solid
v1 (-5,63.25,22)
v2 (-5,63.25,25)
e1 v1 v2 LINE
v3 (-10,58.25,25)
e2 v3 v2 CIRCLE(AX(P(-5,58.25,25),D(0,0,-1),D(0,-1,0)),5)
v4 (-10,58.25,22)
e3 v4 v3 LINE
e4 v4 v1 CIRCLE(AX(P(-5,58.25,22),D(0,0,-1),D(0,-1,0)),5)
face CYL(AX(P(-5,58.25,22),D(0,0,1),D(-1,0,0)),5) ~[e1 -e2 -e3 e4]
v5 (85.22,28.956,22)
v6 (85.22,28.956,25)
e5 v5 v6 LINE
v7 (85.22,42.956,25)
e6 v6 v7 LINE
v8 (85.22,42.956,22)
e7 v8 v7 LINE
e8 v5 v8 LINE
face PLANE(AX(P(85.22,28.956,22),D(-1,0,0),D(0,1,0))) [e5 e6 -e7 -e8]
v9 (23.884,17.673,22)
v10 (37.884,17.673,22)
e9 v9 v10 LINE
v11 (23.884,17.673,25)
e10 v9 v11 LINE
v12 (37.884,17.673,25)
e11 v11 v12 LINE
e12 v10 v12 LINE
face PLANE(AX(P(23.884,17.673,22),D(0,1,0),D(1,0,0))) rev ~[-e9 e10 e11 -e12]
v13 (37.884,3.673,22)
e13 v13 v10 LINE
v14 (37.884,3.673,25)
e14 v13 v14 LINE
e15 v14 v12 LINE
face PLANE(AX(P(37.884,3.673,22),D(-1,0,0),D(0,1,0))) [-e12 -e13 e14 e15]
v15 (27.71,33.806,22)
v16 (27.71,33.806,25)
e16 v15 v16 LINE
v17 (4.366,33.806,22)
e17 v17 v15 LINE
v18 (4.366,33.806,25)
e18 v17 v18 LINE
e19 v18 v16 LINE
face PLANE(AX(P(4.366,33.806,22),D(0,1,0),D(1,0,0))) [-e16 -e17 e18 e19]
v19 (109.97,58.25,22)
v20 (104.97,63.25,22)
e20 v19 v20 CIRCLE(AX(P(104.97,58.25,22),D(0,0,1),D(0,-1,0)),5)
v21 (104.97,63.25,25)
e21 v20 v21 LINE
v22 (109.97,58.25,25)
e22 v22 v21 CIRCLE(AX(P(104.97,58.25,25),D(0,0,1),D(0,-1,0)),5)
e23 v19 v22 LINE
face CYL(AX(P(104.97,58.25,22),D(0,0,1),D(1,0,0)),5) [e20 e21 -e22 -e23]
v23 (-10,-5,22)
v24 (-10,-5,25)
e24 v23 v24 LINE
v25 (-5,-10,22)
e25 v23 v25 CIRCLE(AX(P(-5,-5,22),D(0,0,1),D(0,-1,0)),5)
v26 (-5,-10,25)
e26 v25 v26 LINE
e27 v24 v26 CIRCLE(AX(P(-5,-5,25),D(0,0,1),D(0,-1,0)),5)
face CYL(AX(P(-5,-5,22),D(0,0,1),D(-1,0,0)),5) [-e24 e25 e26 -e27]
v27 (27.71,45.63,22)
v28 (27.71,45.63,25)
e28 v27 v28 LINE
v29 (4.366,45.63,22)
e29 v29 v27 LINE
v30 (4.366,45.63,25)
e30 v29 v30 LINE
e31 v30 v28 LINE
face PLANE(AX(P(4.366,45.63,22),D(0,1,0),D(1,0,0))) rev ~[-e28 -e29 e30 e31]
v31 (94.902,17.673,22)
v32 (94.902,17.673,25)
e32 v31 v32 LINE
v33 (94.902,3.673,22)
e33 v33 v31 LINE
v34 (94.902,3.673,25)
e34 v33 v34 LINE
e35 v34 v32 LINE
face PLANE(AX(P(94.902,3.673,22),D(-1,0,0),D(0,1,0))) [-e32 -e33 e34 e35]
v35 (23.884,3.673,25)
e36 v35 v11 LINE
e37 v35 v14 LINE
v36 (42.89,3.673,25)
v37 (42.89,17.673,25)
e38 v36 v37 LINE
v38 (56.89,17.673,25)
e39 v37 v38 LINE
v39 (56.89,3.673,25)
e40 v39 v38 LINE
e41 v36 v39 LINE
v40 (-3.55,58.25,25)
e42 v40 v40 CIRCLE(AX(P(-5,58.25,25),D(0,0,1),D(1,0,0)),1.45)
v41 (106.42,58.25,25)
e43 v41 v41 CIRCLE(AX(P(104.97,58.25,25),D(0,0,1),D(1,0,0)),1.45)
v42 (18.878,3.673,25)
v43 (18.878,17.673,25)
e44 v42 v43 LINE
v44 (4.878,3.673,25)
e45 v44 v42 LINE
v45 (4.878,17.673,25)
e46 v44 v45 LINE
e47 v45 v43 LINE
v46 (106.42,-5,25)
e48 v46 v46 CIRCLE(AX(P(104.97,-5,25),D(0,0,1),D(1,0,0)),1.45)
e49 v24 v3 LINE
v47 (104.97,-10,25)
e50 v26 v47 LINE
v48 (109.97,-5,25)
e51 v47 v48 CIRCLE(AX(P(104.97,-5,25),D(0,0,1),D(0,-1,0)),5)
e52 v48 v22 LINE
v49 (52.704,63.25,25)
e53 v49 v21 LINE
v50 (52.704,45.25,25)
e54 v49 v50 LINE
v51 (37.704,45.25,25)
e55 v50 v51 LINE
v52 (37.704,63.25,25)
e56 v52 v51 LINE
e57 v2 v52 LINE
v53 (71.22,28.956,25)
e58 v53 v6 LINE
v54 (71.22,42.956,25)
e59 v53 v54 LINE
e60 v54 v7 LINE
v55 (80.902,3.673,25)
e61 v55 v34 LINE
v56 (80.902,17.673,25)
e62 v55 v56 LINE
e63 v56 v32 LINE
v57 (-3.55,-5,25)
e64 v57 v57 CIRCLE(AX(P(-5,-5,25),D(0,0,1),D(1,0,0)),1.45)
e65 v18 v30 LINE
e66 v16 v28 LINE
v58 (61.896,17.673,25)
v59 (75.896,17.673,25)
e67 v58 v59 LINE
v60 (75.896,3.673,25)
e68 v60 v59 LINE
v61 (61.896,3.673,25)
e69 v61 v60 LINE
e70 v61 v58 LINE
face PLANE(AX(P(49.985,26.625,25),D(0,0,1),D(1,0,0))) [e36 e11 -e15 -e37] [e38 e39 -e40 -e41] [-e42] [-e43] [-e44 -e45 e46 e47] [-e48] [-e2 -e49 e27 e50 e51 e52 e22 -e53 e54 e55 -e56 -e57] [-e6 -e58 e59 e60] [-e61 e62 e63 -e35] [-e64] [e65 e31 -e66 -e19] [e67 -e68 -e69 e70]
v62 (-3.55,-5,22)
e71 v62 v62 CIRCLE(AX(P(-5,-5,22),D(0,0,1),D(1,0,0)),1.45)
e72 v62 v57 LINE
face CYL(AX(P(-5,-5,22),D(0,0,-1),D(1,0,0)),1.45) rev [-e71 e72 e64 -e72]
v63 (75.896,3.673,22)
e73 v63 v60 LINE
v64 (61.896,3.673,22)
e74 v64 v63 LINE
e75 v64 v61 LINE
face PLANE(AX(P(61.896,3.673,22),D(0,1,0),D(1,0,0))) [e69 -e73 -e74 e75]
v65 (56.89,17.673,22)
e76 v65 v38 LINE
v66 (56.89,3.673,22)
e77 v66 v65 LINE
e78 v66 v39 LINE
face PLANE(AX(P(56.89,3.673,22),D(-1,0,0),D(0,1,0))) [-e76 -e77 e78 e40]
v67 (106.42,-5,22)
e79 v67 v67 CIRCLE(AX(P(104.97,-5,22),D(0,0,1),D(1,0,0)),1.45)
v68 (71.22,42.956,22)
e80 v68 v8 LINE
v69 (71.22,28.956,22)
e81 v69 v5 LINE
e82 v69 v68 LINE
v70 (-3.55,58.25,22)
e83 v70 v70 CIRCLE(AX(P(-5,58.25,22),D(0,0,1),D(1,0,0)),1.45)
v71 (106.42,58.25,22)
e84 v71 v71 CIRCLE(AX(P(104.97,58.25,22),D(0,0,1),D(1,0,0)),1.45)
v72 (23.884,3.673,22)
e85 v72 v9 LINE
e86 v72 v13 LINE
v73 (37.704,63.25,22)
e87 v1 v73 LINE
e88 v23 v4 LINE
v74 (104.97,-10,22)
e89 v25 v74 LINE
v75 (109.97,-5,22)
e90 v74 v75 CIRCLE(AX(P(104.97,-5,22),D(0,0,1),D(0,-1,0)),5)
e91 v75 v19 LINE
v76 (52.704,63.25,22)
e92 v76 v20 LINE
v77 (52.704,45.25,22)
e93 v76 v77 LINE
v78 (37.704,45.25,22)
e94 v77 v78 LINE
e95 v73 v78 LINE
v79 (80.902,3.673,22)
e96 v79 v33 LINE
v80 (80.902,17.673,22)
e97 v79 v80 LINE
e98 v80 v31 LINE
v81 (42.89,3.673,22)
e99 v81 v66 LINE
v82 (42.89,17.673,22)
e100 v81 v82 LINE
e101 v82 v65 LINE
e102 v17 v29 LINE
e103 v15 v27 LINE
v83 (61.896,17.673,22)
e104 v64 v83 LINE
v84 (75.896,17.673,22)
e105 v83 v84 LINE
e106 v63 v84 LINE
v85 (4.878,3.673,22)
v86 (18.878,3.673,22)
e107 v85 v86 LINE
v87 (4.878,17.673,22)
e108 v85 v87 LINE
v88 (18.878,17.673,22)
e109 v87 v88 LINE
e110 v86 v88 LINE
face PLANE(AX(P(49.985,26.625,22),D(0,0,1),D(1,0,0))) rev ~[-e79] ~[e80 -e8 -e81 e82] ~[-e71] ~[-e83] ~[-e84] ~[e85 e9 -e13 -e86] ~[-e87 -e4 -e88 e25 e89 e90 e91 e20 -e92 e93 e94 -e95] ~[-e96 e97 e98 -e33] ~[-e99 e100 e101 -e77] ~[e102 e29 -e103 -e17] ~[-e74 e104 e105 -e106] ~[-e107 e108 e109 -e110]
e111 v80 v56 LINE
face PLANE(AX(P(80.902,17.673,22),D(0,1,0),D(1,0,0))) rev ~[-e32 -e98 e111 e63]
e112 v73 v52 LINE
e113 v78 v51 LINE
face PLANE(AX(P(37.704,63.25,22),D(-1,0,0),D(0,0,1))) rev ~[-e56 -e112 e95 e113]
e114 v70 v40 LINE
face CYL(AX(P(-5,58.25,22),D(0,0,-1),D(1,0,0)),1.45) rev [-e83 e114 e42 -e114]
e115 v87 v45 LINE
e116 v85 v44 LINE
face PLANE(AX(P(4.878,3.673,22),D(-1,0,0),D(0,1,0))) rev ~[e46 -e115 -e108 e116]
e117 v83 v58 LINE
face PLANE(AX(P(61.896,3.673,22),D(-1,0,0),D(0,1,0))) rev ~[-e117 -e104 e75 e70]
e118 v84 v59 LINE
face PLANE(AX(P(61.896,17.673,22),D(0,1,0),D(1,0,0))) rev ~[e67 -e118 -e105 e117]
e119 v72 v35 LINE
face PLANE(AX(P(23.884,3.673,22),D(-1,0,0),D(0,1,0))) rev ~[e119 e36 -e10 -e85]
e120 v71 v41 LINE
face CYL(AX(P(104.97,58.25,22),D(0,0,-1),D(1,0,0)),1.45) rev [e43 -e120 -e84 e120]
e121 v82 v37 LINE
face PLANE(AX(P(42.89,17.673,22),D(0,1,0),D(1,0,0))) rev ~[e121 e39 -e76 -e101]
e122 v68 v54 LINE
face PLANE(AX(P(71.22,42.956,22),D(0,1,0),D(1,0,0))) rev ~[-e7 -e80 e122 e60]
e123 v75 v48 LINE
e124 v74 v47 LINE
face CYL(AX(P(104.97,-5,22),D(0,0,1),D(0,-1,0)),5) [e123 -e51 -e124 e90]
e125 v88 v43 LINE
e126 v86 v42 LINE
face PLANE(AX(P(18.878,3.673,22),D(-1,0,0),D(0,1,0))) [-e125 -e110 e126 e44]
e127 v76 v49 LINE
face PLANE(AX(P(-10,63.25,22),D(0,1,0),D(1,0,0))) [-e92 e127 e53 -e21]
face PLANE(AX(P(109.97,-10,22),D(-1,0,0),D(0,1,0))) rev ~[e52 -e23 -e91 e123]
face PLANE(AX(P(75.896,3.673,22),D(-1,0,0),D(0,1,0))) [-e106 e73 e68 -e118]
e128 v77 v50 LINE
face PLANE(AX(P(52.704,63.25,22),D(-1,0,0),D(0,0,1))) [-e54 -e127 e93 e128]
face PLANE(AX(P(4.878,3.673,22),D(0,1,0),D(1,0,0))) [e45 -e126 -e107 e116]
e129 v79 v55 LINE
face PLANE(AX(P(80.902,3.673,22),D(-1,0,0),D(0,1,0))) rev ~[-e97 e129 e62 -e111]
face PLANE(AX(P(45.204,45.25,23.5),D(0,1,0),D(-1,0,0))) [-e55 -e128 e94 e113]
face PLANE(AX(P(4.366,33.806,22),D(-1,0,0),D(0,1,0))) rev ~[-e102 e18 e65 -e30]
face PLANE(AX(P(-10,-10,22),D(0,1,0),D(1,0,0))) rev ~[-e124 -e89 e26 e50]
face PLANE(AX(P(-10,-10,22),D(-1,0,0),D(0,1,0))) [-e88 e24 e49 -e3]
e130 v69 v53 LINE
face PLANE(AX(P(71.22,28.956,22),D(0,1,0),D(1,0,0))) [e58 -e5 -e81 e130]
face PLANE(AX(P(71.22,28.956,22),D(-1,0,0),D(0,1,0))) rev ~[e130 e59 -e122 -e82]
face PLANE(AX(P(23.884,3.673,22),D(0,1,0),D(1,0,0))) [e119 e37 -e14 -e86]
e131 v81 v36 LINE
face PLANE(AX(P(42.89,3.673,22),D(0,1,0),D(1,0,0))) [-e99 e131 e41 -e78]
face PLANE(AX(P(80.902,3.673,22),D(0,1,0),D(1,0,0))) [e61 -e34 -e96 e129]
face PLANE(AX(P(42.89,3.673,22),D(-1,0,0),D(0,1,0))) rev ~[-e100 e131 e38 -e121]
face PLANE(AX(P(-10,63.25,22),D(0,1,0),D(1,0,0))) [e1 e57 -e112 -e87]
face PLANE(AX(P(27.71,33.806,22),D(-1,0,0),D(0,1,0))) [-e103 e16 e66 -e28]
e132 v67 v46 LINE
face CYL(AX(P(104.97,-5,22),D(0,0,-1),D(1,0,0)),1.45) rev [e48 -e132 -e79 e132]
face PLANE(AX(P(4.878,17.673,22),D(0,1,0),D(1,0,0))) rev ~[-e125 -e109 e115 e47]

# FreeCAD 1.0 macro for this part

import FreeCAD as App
import Part
import Sketcher
from FreeCAD import Vector
Q = App.Units.Quantity


def edges_at(feature, points):
    """Names of the edges that pass closest to the given points."""
    edges = feature.Shape.Edges
    near = lambda p: min(range(len(edges)), key=lambda i: edges[i].distToShape(Part.Vertex(*p))[0])
    return sorted({f"Edge{near(p) + 1}" for p in points})


def add_polygon(sketch, points):
    """Adds a closed chain of lines whose ends are joined by coincident constraints."""
    first, n = sketch.GeometryCount, len(points)
    for a, b in zip(points, points[1:] + points[:1]):
        sketch.addGeometry(Part.LineSegment(App.Vector(*a, 0), App.Vector(*b, 0)), False)
    for i in range(n):
        sketch.addConstraint(Sketcher.Constraint("Coincident", first + i, 2, first + (i + 1) % n, 1))

doc = App.newDocument("Part")
body = doc.addObject("PartDesign::Body", "Body")

# Sketch on XZ plane
sketch1 = body.newObject("Sketcher::SketchObject", "Sketch")
sketch1.AttachmentSupport = (doc.getObject("XZ_Plane"), [""])
sketch1.MapMode = "FlatFace"
sketch1.AttachmentOffset = App.Placement(Vector(0, 0, -63.25), App.Rotation())
add_polygon(sketch1, [(52.7, 25), (52.7, 22), (37.7, 22), (37.7, 25)])  # lines 0-3
sketch1.addConstraint(Sketcher.Constraint("Vertical", 0))
sketch1.addConstraint(Sketcher.Constraint("Horizontal", 1))
sketch1.addConstraint(Sketcher.Constraint("Vertical", 2))
sketch1.addConstraint(Sketcher.Constraint("Horizontal", 3))
sketch1.addConstraint(Sketcher.Constraint("DistanceX", 1, 2, 1, 1, Q("15 mm")))
sketch1.addConstraint(Sketcher.Constraint("DistanceY", 0, 2, 0, 1, Q("3 mm")))
sketch1.addConstraint(Sketcher.Constraint("DistanceY", -1, 1, 0, 2, Q("22 mm")))
sketch1.addConstraint(Sketcher.Constraint("DistanceX", -1, 1, 0, 2, Q("52.704 mm")))
pad1 = body.newObject("PartDesign::Pad", "Pad")
pad1.Profile = sketch1
pad1.Length = 18
body2 = doc.addObject("PartDesign::Body", "Body001")

# Sketch on XY plane
sketch2 = body2.newObject("Sketcher::SketchObject", "Sketch001")
sketch2.AttachmentSupport = (doc.getObject("XY_Plane001"), [""])
sketch2.MapMode = "FlatFace"
sketch2.AttachmentOffset = App.Placement(Vector(0, 0, 22), App.Rotation())
add_polygon(sketch2, [(-10, 63.2), (-10, -10), (110, -10), (110, 63.2)])  # lines 0-3
sketch2.addGeometry(Part.Circle(Vector(-5, -5, 0), Vector(0, 0, 1), 1.4), False)  # 4
add_polygon(sketch2, [(18.9, 3.7), (4.9, 3.7), (4.9, 17.7), (18.9, 17.7)])  # lines 5-8
add_polygon(sketch2, [(37.9, 3.7), (23.9, 3.7), (23.9, 17.7), (37.9, 17.7)])  # lines 9-12
add_polygon(sketch2, [(56.9, 3.7), (42.9, 3.7), (42.9, 17.7), (56.9, 17.7)])  # lines 13-16
sketch2.addGeometry(Part.Circle(Vector(105, -5, 0), Vector(0, 0, 1), 1.4), False)  # 17
add_polygon(sketch2, [(75.9, 3.7), (61.9, 3.7), (61.9, 17.7), (75.9, 17.7)])  # lines 18-21
add_polygon(sketch2, [(94.9, 3.7), (80.9, 3.7), (80.9, 17.7), (94.9, 17.7)])  # lines 22-25
add_polygon(sketch2, [(27.7, 33.8), (4.4, 33.8), (4.4, 45.6), (27.7, 45.6)])  # lines 26-29
sketch2.addGeometry(Part.Circle(Vector(-5, 58.2, 0), Vector(0, 0, 1), 1.4), False)  # 30
add_polygon(sketch2, [(85.2, 29), (71.2, 29), (71.2, 43), (85.2, 43)])  # lines 31-34
sketch2.addGeometry(Part.Circle(Vector(105, 58.2, 0), Vector(0, 0, 1), 1.4), False)  # 35
sketch2.addConstraint(Sketcher.Constraint("Vertical", 0))
sketch2.addConstraint(Sketcher.Constraint("Horizontal", 1))
sketch2.addConstraint(Sketcher.Constraint("Vertical", 2))
sketch2.addConstraint(Sketcher.Constraint("Horizontal", 3))
sketch2.addConstraint(Sketcher.Constraint("Horizontal", 5))
sketch2.addConstraint(Sketcher.Constraint("Vertical", 6))
sketch2.addConstraint(Sketcher.Constraint("Horizontal", 7))
sketch2.addConstraint(Sketcher.Constraint("Vertical", 8))
sketch2.addConstraint(Sketcher.Constraint("Horizontal", 9))
sketch2.addConstraint(Sketcher.Constraint("Vertical", 10))
sketch2.addConstraint(Sketcher.Constraint("Horizontal", 11))
sketch2.addConstraint(Sketcher.Constraint("Vertical", 12))
sketch2.addConstraint(Sketcher.Constraint("Horizontal", 13))
sketch2.addConstraint(Sketcher.Constraint("Vertical", 14))
sketch2.addConstraint(Sketcher.Constraint("Horizontal", 15))
sketch2.addConstraint(Sketcher.Constraint("Vertical", 16))
sketch2.addConstraint(Sketcher.Constraint("Horizontal", 18))
sketch2.addConstraint(Sketcher.Constraint("Vertical", 19))
sketch2.addConstraint(Sketcher.Constraint("Horizontal", 20))
sketch2.addConstraint(Sketcher.Constraint("Vertical", 21))
sketch2.addConstraint(Sketcher.Constraint("Horizontal", 22))
sketch2.addConstraint(Sketcher.Constraint("Vertical", 23))
sketch2.addConstraint(Sketcher.Constraint("Horizontal", 24))
sketch2.addConstraint(Sketcher.Constraint("Vertical", 25))
sketch2.addConstraint(Sketcher.Constraint("Horizontal", 26))
sketch2.addConstraint(Sketcher.Constraint("Vertical", 27))
sketch2.addConstraint(Sketcher.Constraint("Horizontal", 28))
sketch2.addConstraint(Sketcher.Constraint("Vertical", 29))
sketch2.addConstraint(Sketcher.Constraint("Horizontal", 31))
sketch2.addConstraint(Sketcher.Constraint("Vertical", 32))
sketch2.addConstraint(Sketcher.Constraint("Horizontal", 33))
sketch2.addConstraint(Sketcher.Constraint("Vertical", 34))
sketch2.addConstraint(Sketcher.Constraint("Equal", 4, 17))
sketch2.addConstraint(Sketcher.Constraint("Equal", 17, 30))
sketch2.addConstraint(Sketcher.Constraint("Equal", 30, 35))
sketch2.addConstraint(Sketcher.Constraint("Horizontal", 4, 3, 17, 3))
sketch2.addConstraint(Sketcher.Constraint("Horizontal", 30, 3, 35, 3))
sketch2.addConstraint(Sketcher.Constraint("Horizontal", 8, 2, 9, 2))
sketch2.addConstraint(Sketcher.Constraint("Horizontal", 7, 2, 10, 2))
sketch2.addConstraint(Sketcher.Constraint("Horizontal", 12, 2, 13, 2))
sketch2.addConstraint(Sketcher.Constraint("Horizontal", 11, 2, 14, 2))
sketch2.addConstraint(Sketcher.Constraint("Horizontal", 16, 2, 18, 2))
sketch2.addConstraint(Sketcher.Constraint("Horizontal", 15, 2, 19, 2))
sketch2.addConstraint(Sketcher.Constraint("Horizontal", 21, 2, 22, 2))
sketch2.addConstraint(Sketcher.Constraint("Horizontal", 20, 2, 23, 2))
sketch2.addConstraint(Sketcher.Constraint("Vertical", 4, 3, 30, 3))
sketch2.addConstraint(Sketcher.Constraint("Vertical", 17, 3, 35, 3))
sketch2.addConstraint(Sketcher.Constraint("Equal", 7, 9))
sketch2.addConstraint(Sketcher.Constraint("Equal", 11, 13))
sketch2.addConstraint(Sketcher.Constraint("Equal", 15, 18))
sketch2.addConstraint(Sketcher.Constraint("Equal", 20, 22))
sketch2.addConstraint(Sketcher.Constraint("Equal", 24, 31))
sketch2.addConstraint(Sketcher.Constraint("Equal", 33, 6))
sketch2.addConstraint(Sketcher.Constraint("Equal", 25, 32))
sketch2.addConstraint(Sketcher.Constraint("Diameter", 4, Q("2.9 mm")))
sketch2.addConstraint(Sketcher.Constraint("DistanceX", 5, 2, 5, 1, Q("14 mm")))
sketch2.addConstraint(Sketcher.Constraint("DistanceX", 4, 3, -1, 1, Q("5 mm")))
sketch2.addConstraint(Sketcher.Constraint("DistanceY", 4, 3, -1, 1, Q("5 mm")))
sketch2.addConstraint(Sketcher.Constraint("DistanceX", 0, 2, -1, 1, Q("10 mm")))
sketch2.addConstraint(Sketcher.Constraint("DistanceY", 0, 2, -1, 1, Q("10 mm")))
sketch2.addConstraint(Sketcher.Constraint("DistanceX", 17, 3, 1, 2, Q("5 mm")))
sketch2.addConstraint(Sketcher.Constraint("DistanceY", 35, 3, 2, 2, Q("5 mm")))
sketch2.addConstraint(Sketcher.Constraint("DistanceX", 1, 1, 1, 2, Q("119.97 mm")))
sketch2.addConstraint(Sketcher.Constraint("DistanceY", 0, 2, 0, 1, Q("73.25 mm")))
sketch2.addConstraint(Sketcher.Constraint("DistanceX", 26, 2, 26, 1, Q("23.344 mm")))
sketch2.addConstraint(Sketcher.Constraint("DistanceY", 27, 1, 27, 2, Q("11.824 mm")))
sketch2.addConstraint(Sketcher.Constraint("DistanceX", -1, 1, 13, 2, Q("42.89 mm")))
sketch2.addConstraint(Sketcher.Constraint("DistanceY", -1, 1, 27, 2, Q("45.63 mm")))
sketch2.addConstraint(Sketcher.Constraint("DistanceX", -1, 1, 28, 2, Q("27.71 mm")))
sketch2.addConstraint(Sketcher.Constraint("DistanceX", -1, 1, 31, 2, Q("71.22 mm")))
sketch2.addConstraint(Sketcher.Constraint("DistanceX", -1, 1, 5, 2, Q("4.878 mm")))
sketch2.addConstraint(Sketcher.Constraint("DistanceY", -1, 1, 5, 2, Q("3.673 mm")))
sketch2.addConstraint(Sketcher.Constraint("DistanceX", -1, 1, 9, 2, Q("23.884 mm")))
sketch2.addConstraint(Sketcher.Constraint("DistanceX", -1, 1, 18, 2, Q("61.896 mm")))
sketch2.addConstraint(Sketcher.Constraint("DistanceX", -1, 1, 22, 2, Q("80.902 mm")))
sketch2.addConstraint(Sketcher.Constraint("DistanceY", -1, 1, 31, 2, Q("28.956 mm")))
pad2 = body2.newObject("PartDesign::Pad", "Pad001")
pad2.Profile = sketch2
pad2.Length = 3
doc.recompute()

boolean = body2.newObject("PartDesign::Boolean", "Boolean")
boolean.Type = "Cut"
boolean.addObjects([body])
doc.recompute()

fillet = body2.newObject("PartDesign::Fillet", "Fillet")
fillet.Base = (boolean, edges_at(boolean, [
    (-10, 63.25, 23.5),
    (-10, -10, 23.5),
    (109.97, -10, 23.5),
    (109.97, 63.25, 23.5),
]))
fillet.Radius = 5

doc.recompute()
